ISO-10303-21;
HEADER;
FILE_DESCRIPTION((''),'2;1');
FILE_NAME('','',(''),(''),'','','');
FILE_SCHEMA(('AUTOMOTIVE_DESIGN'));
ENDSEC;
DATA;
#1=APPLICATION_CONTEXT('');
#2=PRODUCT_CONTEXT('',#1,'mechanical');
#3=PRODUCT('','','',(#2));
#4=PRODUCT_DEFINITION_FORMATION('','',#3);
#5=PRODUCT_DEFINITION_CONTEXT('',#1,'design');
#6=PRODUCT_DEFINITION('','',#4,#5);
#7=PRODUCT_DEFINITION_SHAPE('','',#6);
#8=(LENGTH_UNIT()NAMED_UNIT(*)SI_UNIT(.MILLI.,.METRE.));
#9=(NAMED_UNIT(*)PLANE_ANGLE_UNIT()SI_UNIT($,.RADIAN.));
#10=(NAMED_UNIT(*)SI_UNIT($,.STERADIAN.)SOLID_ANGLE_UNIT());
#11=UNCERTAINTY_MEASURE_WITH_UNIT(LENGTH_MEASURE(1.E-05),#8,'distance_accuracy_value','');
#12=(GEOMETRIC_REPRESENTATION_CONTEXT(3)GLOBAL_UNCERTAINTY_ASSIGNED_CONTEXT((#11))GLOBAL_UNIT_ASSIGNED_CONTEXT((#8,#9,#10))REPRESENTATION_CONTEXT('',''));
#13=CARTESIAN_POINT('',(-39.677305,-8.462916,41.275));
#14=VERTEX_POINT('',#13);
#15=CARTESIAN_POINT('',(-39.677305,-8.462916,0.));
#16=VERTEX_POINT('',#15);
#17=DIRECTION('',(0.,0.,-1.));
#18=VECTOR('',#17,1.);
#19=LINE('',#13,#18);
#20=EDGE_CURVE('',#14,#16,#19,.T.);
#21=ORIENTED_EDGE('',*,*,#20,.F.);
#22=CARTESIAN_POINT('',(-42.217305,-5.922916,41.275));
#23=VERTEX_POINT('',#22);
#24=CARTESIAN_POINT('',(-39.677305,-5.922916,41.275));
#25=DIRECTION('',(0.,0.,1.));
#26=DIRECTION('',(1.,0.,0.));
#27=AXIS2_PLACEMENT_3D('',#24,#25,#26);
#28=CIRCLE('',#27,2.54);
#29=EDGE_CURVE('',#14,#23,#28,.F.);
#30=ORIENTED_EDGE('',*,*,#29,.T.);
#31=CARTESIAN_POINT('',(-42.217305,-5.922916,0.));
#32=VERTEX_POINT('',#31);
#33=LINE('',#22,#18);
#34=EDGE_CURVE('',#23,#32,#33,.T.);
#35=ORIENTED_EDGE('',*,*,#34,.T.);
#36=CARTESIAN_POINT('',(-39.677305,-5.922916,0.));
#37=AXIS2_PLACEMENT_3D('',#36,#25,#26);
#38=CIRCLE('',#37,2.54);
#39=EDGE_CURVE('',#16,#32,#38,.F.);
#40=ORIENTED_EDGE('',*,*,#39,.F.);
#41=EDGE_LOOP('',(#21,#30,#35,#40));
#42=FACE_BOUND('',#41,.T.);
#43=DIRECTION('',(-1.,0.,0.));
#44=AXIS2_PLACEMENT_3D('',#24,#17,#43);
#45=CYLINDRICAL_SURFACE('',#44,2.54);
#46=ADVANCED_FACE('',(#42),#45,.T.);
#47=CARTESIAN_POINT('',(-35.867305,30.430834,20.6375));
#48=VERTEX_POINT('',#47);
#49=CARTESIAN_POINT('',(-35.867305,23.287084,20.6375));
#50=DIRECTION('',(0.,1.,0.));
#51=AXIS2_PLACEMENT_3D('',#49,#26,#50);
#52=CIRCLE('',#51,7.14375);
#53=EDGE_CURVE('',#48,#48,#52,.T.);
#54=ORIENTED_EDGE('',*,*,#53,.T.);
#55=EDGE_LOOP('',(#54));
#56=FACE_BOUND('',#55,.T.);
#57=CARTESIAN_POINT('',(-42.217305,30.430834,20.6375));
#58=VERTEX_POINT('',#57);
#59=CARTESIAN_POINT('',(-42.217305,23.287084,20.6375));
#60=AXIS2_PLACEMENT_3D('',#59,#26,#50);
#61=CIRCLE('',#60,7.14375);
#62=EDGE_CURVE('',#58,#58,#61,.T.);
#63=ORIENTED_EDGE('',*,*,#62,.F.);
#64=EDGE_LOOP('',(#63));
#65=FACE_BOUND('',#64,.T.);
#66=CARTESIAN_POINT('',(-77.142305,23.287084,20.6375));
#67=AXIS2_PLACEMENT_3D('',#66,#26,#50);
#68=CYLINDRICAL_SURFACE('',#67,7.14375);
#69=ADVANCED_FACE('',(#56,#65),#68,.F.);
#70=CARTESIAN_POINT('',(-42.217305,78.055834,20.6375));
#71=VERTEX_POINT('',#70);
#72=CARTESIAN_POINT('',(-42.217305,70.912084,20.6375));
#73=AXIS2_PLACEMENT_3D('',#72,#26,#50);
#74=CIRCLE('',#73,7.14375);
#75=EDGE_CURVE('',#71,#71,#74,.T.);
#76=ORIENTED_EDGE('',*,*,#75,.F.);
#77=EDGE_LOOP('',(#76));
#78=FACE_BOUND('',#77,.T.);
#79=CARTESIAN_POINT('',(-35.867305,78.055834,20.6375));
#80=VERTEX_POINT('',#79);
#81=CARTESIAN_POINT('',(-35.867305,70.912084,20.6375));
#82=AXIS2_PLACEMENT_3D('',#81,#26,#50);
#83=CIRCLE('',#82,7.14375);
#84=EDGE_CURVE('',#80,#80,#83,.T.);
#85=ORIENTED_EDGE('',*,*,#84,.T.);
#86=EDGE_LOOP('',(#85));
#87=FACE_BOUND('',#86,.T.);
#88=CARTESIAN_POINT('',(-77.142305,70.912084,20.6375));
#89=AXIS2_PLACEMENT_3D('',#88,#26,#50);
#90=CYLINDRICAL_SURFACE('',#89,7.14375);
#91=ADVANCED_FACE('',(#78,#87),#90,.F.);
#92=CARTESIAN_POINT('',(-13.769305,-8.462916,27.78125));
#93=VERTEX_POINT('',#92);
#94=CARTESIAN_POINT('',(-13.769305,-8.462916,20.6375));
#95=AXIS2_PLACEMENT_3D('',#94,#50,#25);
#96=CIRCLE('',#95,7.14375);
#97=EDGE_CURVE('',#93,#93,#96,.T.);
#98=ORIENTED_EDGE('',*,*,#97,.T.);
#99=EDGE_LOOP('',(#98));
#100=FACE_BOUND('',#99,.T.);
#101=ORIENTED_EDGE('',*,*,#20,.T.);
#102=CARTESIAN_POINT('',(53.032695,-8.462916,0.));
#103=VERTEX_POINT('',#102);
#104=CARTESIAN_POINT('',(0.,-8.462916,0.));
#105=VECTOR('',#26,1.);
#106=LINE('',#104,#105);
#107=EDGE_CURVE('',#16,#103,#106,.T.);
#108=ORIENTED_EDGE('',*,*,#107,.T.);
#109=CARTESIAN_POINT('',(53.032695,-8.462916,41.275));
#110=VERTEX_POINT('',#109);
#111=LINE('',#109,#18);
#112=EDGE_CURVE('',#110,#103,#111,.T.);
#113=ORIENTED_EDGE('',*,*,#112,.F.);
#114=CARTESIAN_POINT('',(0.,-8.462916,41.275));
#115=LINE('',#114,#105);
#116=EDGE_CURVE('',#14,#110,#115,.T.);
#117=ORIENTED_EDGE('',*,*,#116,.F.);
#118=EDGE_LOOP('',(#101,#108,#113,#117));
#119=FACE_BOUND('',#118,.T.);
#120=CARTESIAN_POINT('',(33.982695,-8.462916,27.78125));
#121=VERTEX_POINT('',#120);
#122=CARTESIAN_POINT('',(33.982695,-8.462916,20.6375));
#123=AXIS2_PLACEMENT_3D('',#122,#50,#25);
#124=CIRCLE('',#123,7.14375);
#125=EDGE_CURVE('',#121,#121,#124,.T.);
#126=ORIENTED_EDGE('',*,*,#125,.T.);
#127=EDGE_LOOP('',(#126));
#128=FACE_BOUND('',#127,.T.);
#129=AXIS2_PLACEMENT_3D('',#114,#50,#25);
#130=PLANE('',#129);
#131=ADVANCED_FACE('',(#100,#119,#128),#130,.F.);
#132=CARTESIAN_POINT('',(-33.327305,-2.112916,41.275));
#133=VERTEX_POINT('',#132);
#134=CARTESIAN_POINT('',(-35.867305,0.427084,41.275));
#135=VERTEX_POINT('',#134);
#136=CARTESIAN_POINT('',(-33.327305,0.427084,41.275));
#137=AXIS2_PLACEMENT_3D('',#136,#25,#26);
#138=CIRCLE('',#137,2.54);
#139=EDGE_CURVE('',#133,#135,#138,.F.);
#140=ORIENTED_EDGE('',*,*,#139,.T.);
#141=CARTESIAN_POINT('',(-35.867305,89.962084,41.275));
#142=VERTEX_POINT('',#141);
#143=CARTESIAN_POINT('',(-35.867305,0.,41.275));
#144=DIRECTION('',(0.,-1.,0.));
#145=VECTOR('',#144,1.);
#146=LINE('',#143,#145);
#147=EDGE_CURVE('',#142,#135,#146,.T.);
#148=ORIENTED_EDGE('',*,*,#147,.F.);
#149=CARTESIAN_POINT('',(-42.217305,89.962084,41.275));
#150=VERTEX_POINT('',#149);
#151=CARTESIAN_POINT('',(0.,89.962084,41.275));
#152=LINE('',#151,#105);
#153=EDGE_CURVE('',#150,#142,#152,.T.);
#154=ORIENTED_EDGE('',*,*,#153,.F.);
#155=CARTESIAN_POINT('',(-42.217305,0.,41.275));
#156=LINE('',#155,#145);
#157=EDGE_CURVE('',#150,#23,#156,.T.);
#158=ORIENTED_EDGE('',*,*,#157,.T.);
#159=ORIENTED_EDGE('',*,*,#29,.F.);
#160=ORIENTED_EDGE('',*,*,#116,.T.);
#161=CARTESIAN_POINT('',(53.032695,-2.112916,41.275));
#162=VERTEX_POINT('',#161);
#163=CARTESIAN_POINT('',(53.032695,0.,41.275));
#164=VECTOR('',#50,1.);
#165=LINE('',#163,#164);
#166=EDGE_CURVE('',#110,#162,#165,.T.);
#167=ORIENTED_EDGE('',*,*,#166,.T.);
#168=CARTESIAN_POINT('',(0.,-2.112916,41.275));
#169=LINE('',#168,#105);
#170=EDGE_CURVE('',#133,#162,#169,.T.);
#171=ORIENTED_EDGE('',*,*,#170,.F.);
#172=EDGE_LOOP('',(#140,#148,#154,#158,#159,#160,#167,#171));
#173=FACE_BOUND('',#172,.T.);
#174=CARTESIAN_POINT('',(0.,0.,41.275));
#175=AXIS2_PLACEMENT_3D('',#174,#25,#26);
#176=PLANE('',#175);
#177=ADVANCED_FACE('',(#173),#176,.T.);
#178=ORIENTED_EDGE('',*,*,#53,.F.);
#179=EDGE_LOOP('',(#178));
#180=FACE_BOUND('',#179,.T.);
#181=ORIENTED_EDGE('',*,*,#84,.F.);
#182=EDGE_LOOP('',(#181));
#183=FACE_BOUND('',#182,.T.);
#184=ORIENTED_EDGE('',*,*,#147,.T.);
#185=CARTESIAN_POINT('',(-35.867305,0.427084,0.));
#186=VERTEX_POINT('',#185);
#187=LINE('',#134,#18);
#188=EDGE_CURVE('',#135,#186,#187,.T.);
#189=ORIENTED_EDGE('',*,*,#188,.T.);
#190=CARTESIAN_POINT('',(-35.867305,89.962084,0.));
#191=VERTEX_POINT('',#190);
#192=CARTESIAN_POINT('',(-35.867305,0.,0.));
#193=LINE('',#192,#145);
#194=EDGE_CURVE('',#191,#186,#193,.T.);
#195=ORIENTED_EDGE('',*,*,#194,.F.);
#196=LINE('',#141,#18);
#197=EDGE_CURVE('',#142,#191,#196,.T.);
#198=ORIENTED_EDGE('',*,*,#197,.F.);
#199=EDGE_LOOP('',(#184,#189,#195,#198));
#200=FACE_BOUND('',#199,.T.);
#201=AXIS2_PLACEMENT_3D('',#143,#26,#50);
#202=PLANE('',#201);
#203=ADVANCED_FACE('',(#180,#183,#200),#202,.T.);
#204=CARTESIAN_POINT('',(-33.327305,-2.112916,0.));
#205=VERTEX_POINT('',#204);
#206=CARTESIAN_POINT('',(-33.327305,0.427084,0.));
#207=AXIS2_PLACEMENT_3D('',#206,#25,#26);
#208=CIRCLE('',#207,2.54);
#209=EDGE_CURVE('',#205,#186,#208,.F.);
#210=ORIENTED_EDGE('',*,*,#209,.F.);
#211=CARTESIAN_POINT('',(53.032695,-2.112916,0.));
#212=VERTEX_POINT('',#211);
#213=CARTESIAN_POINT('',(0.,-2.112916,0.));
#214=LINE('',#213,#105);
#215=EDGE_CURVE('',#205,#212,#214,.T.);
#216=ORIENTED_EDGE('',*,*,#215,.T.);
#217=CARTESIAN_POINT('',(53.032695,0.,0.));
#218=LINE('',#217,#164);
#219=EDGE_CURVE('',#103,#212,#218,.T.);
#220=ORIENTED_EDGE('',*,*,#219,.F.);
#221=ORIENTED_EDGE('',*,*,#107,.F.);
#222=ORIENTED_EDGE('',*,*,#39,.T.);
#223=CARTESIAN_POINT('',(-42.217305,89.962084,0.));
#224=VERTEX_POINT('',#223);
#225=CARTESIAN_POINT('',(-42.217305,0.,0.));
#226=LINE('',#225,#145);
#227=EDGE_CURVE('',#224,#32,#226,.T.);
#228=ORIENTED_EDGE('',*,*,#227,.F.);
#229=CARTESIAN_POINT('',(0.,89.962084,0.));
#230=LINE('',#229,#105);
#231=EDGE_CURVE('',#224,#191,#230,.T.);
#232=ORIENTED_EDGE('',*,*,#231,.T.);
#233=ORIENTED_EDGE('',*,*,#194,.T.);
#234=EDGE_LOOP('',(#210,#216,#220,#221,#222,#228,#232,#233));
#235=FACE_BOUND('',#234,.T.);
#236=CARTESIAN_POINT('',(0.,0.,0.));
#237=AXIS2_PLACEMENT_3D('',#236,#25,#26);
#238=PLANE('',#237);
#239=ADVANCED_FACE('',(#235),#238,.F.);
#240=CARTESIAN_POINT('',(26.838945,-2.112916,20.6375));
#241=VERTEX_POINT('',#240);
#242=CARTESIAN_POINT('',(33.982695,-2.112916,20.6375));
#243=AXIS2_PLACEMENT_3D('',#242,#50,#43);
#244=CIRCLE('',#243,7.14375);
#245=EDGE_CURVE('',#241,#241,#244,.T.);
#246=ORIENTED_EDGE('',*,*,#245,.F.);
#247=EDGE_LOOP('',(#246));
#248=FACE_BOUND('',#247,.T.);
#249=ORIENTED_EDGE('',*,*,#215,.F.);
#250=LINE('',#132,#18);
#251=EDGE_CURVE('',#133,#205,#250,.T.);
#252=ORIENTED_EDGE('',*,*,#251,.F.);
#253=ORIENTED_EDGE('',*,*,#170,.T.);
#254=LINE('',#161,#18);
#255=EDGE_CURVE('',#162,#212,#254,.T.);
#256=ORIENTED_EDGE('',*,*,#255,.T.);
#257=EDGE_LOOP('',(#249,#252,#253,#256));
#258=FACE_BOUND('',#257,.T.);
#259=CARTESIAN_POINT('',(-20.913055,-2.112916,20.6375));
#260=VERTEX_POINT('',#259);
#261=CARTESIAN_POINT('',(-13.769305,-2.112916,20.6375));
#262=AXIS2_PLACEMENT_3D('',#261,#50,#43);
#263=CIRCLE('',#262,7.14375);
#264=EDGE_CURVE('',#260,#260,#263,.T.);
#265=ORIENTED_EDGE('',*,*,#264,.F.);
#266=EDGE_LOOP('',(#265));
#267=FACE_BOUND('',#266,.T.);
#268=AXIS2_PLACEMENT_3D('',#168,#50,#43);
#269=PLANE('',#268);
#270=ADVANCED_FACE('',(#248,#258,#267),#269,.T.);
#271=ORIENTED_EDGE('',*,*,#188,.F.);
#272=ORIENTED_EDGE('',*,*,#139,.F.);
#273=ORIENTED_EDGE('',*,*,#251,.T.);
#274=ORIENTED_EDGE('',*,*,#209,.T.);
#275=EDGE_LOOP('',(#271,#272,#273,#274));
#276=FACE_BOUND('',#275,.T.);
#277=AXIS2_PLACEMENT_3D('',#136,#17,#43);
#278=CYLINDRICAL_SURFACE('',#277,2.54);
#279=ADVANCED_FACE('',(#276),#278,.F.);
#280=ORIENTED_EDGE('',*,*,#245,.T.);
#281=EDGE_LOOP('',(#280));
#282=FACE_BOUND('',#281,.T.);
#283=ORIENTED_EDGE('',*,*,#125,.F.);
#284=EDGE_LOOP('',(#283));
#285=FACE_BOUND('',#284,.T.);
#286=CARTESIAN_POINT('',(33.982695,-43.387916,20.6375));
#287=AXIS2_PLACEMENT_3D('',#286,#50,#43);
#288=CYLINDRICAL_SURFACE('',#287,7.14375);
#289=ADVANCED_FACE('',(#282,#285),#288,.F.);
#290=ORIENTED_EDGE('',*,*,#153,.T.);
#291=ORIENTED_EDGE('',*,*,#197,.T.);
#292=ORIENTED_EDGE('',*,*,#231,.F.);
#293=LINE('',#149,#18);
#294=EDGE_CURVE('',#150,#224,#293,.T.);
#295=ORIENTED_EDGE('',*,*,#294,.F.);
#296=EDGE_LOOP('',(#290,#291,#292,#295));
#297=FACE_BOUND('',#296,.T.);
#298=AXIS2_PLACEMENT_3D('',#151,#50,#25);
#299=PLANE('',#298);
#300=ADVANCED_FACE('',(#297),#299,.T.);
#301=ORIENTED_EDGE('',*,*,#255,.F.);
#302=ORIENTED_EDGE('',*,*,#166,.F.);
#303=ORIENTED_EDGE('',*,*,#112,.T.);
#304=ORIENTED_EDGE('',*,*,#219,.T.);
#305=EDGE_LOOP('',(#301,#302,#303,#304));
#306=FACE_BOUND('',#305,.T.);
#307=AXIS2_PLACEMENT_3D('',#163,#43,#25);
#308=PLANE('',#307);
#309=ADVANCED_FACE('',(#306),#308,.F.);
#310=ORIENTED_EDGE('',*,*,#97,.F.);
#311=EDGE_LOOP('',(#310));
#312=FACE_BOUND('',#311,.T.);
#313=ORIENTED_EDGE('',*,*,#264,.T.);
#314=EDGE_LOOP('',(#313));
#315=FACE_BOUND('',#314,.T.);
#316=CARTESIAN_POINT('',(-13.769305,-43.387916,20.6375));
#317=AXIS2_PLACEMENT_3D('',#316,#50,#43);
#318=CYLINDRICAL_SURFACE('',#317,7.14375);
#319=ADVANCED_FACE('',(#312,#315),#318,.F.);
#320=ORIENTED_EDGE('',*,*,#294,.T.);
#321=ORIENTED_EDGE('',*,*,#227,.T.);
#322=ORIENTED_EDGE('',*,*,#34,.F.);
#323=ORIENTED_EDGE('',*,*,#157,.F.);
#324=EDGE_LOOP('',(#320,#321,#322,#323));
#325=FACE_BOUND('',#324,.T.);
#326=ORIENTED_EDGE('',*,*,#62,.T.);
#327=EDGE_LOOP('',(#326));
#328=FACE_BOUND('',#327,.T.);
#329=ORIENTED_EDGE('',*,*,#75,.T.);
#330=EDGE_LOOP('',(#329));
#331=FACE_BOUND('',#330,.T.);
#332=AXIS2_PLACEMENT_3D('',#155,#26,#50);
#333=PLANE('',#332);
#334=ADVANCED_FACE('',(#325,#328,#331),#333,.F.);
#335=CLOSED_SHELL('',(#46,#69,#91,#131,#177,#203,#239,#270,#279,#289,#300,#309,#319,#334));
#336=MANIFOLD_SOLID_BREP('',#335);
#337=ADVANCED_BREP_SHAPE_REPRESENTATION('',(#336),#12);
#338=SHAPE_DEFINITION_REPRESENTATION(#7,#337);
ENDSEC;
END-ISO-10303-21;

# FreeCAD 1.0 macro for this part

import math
import FreeCAD as App
import Part
import Sketcher
from FreeCAD import Vector
Q = App.Units.Quantity

doc = App.newDocument("Part")
params = doc.addObject("Spreadsheet::Sheet", "Params")
for row, (alias, value) in enumerate([
    ("sketch1_radius", "0.1 in"),
    ("sketch1_width", "3.4 in"),
    ("sketch1_width2", "0.25 in"),
    ("sketch1_height", "3.775 in"),
    ("pad1_length", "1.625 in"),
    ("sketch2_diameter", "0.5625 in"),
    ("pocket1_length", "1.625 in"),
    ("sketch3_diameter", "0.5625 in"),
    ("pocket2_length", "1.625 in"),
], start=1):
    params.set(f"A{row}", alias)
    params.set(f"B{row}", "=" + value)
    params.setAlias(f"B{row}", alias)

body = doc.addObject("PartDesign::Body", "Body")

sketch1 = doc.addObject("Sketcher::SketchObject", "Sketch")
body.addObject(sketch1)
sketch1.AttachmentSupport = (doc.XY_Plane, [""])
sketch1.MapMode = "FlatFace"
sketch1.addGeometry([
    Part.LineSegment(Vector(-35.9, 90, 0), Vector(-42.2, 90, 0)),
    Part.LineSegment(Vector(-42.2, 90, 0), Vector(-42.2, -5.9, 0)),
    Part.ArcOfCircle(Part.Circle(Vector(-39.7, -5.9, 0), Vector(0, 0, 1), 2.5), math.radians(-180), math.radians(-90)),
    Part.LineSegment(Vector(-39.7, -8.5, 0), Vector(53, -8.5, 0)),
    Part.LineSegment(Vector(53, -8.5, 0), Vector(53, -2.1, 0)),
    Part.LineSegment(Vector(53, -2.1, 0), Vector(-33.3, -2.1, 0)),
    Part.ArcOfCircle(Part.Circle(Vector(-33.3, 0.4, 0), Vector(0, 0, 1), 2.5), math.radians(-180), math.radians(-90)),
    Part.LineSegment(Vector(-35.9, 0.4, 0), Vector(-35.9, 90, 0)),
], False)
sketch1.addConstraint([
    Sketcher.Constraint("Coincident", 0, 2, 1, 1),
    Sketcher.Constraint("Tangent", 1, 2, 2, 1),
    Sketcher.Constraint("Tangent", 2, 2, 3, 1),
    Sketcher.Constraint("Coincident", 3, 2, 4, 1),
    Sketcher.Constraint("Coincident", 4, 2, 5, 1),
    Sketcher.Constraint("Tangent", 5, 2, 6, 2),
    Sketcher.Constraint("Tangent", 6, 1, 7, 1),
    Sketcher.Constraint("Coincident", 7, 2, 0, 1),
    Sketcher.Constraint("Horizontal", 0),
    Sketcher.Constraint("Vertical", 1),
    Sketcher.Constraint("Horizontal", 3),
    Sketcher.Constraint("Vertical", 4),
    Sketcher.Constraint("Horizontal", 5),
    Sketcher.Constraint("Vertical", 7),
    Sketcher.Constraint("Equal", 2, 6),
    Sketcher.Constraint("Equal", 0, 4),
    Sketcher.Constraint("Radius", 2, Q("0.1 in")),
    Sketcher.Constraint("DistanceX", 5, 2, 5, 1, Q("3.4 in")),
    Sketcher.Constraint("DistanceX", 0, 2, 0, 1, Q("0.25 in")),
    Sketcher.Constraint("DistanceY", 1, 2, 1, 1, Q("3.775 in")),
    Sketcher.Constraint("DistanceX", 2, 3, -1, 1, 39.677305),
    Sketcher.Constraint("DistanceY", 2, 3, -1, 1, 5.922916),
])
sketch1.setExpression("Constraints[16]", "Params.sketch1_radius")
sketch1.setExpression("Constraints[17]", "Params.sketch1_width")
sketch1.setExpression("Constraints[18]", "Params.sketch1_width2")
sketch1.setExpression("Constraints[19]", "Params.sketch1_height")
pad1 = doc.addObject("PartDesign::Pad", "Pad")
body.addObject(pad1)
pad1.Profile = sketch1
pad1.setExpression("Length", "Params.pad1_length")

sketch2 = doc.addObject("Sketcher::SketchObject", "Sketch001")
body.addObject(sketch2)
sketch2.AttachmentSupport = (doc.YZ_Plane, [""])
sketch2.MapMode = "FlatFace"
sketch2.AttachmentOffset = App.Placement(Vector(0, 0, -35.867305), App.Rotation())
sketch2.addGeometry([
    Part.Circle(Vector(71, 21, 0), Vector(0, 0, 1), 7),
    Part.Circle(Vector(23, 21, 0), Vector(0, 0, 1), 7),
], False)
sketch2.addConstraint([
    Sketcher.Constraint("Equal", 0, 1),
    Sketcher.Constraint("Horizontal", 0, 3, 1, 3),
    Sketcher.Constraint("Diameter", 0, Q("0.5625 in")),
    Sketcher.Constraint("DistanceY", -1, 1, 0, 3, Q("0.8125 in")),
    Sketcher.Constraint("DistanceX", 1, 3, 0, 3, Q("1.875 in")),
    Sketcher.Constraint("DistanceX", -1, 1, 0, 3, 70.912084),
])
sketch2.setExpression("Constraints[2]", "Params.sketch2_diameter")
pocket1 = doc.addObject("PartDesign::Pocket", "Pocket")
body.addObject(pocket1)
pocket1.Profile = sketch2
pocket1.setExpression("Length", "Params.pocket1_length")

sketch3 = doc.addObject("Sketcher::SketchObject", "Sketch002")
body.addObject(sketch3)
sketch3.AttachmentSupport = (doc.XZ_Plane, [""])
sketch3.MapMode = "FlatFace"
sketch3.AttachmentOffset = App.Placement(Vector(0, 0, 2.112916), App.Rotation())
sketch3.addGeometry([
    Part.Circle(Vector(-14, 21, 0), Vector(0, 0, 1), 7),
    Part.Circle(Vector(34, 21, 0), Vector(0, 0, 1), 7),
], False)
sketch3.addConstraint([
    Sketcher.Constraint("Equal", 0, 1),
    Sketcher.Constraint("Horizontal", 0, 3, 1, 3),
    Sketcher.Constraint("Diameter", 0, Q("0.5625 in")),
    Sketcher.Constraint("DistanceX", 0, 3, 1, 3, Q("1.88 in")),
    Sketcher.Constraint("DistanceY", -1, 1, 0, 3, Q("0.8125 in")),
    Sketcher.Constraint("DistanceX", 0, 3, -1, 1, 13.769305),
])
sketch3.setExpression("Constraints[2]", "Params.sketch3_diameter")
pocket2 = doc.addObject("PartDesign::Pocket", "Pocket001")
body.addObject(pocket2)
pocket2.Profile = sketch3
pocket2.setExpression("Length", "Params.pocket2_length")
pocket2.Reversed = True

doc.recompute()
